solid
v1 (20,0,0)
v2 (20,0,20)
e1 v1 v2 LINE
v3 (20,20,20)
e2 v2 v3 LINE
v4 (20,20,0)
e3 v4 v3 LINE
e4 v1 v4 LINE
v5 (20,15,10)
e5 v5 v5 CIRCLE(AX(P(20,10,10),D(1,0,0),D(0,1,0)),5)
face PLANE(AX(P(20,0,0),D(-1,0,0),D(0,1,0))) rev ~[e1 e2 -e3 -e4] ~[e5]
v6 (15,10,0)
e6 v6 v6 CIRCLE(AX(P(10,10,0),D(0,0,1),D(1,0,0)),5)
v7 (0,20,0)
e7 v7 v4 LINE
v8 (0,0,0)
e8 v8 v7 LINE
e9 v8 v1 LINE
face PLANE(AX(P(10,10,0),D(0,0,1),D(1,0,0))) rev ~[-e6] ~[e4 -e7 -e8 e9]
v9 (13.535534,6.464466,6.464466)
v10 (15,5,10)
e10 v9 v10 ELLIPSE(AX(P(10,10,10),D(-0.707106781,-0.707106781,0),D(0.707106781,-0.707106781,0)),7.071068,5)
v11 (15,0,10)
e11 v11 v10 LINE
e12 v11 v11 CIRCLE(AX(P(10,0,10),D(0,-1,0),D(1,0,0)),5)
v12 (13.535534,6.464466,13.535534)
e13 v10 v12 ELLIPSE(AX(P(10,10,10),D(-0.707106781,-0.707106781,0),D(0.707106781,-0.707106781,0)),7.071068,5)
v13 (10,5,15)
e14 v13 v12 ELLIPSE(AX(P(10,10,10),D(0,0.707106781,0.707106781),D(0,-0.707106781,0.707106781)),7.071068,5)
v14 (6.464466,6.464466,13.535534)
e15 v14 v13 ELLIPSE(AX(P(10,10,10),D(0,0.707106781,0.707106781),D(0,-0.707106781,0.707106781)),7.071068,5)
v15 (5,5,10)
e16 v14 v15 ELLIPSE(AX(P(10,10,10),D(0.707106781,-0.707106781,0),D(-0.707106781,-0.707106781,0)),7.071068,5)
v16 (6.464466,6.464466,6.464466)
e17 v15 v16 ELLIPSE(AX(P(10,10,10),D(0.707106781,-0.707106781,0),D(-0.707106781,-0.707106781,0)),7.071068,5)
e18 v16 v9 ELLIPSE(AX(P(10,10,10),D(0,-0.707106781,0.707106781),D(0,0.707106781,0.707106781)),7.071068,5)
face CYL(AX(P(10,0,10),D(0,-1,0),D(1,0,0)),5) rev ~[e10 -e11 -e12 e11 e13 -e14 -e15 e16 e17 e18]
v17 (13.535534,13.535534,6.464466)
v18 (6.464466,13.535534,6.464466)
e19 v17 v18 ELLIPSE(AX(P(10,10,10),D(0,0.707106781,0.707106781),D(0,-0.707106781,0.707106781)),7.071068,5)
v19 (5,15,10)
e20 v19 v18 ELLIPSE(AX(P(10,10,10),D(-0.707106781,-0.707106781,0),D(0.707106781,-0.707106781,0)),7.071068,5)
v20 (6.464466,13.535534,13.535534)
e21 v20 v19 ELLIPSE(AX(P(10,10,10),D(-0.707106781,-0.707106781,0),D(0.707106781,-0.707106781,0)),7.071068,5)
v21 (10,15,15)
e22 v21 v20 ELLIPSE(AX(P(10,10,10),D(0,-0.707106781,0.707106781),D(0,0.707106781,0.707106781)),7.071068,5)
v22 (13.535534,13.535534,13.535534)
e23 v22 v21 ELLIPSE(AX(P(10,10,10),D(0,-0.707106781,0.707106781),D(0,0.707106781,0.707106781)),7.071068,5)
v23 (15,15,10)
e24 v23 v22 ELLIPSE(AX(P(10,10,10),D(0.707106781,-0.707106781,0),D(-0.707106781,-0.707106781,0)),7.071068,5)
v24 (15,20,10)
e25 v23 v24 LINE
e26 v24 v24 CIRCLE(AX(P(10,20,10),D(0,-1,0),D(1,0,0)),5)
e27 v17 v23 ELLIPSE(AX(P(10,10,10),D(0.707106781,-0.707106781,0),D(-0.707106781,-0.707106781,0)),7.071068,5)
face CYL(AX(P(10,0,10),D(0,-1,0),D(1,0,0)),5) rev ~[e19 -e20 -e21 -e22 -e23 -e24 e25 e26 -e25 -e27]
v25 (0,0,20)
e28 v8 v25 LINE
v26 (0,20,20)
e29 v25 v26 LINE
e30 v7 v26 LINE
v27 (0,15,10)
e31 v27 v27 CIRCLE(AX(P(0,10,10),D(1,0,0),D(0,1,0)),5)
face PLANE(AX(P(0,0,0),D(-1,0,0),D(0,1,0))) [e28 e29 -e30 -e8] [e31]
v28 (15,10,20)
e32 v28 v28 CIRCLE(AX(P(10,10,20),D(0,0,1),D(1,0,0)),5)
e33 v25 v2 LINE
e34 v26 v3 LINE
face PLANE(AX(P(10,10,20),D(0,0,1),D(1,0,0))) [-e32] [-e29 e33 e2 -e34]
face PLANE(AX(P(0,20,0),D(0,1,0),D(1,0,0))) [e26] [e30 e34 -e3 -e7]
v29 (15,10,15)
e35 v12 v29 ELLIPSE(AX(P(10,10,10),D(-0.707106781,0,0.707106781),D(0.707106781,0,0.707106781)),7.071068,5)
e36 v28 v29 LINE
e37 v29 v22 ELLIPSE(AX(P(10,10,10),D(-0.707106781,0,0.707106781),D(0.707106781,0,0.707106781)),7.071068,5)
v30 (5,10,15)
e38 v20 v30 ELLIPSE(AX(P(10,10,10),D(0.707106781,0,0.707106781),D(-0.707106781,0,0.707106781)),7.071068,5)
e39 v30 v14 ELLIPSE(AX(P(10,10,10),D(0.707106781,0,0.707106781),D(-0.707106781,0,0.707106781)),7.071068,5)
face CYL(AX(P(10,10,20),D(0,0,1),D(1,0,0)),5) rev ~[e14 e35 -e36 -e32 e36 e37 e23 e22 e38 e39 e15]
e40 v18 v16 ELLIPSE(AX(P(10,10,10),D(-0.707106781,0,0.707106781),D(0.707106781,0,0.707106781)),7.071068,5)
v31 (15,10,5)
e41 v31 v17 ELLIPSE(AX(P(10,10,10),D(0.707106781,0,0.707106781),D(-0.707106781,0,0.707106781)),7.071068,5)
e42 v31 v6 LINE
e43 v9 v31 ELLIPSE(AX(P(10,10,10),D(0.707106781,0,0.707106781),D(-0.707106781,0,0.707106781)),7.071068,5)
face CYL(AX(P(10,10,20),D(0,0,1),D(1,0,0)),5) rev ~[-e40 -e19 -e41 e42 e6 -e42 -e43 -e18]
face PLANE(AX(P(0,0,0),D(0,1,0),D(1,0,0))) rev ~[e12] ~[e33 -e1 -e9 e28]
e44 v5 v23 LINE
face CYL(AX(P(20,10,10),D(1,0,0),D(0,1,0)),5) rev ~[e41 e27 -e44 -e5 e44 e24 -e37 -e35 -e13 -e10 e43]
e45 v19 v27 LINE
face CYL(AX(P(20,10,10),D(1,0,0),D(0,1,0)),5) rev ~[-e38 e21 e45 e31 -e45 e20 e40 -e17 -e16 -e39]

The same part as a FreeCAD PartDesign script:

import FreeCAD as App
import Part
import Sketcher
from FreeCAD import Vector
Q = App.Units.Quantity


def add_polygon(sketch, points):
    """Adds a closed chain of lines whose ends are joined by coincident constraints."""
    first, n = sketch.GeometryCount, len(points)
    for a, b in zip(points, points[1:] + points[:1]):
        sketch.addGeometry(Part.LineSegment(App.Vector(*a, 0), App.Vector(*b, 0)), False)
    for i in range(n):
        sketch.addConstraint(Sketcher.Constraint("Coincident", first + i, 2, first + (i + 1) % n, 1))

doc = App.newDocument("Part")
body = doc.addObject("PartDesign::Body", "Body")

sketch1 = doc.addObject("Sketcher::SketchObject", "Sketch")
body.addObject(sketch1)
sketch1.AttachmentSupport = (doc.XY_Plane, [""])
sketch1.MapMode = "FlatFace"
add_polygon(sketch1, [(0, 20), (0, 0), (20, 0), (20, 20)])
sketch1.addConstraint([
    Sketcher.Constraint("Vertical", 0),
    Sketcher.Constraint("Horizontal", 1),
    Sketcher.Constraint("Vertical", 2),
    Sketcher.Constraint("Horizontal", 3),
    Sketcher.Constraint("Coincident", 0, 2, -1, 1),
    Sketcher.Constraint("Equal", 3, 0),
    Sketcher.Constraint("DistanceX", 1, 1, 1, 2, Q("20 mm")),
])
pad1 = doc.addObject("PartDesign::Pad", "Pad")
body.addObject(pad1)
pad1.Profile = sketch1
pad1.Length = 20

sketch2 = doc.addObject("Sketcher::SketchObject", "Sketch001")
body.addObject(sketch2)
sketch2.AttachmentSupport = (doc.XY_Plane, [""])
sketch2.MapMode = "FlatFace"
sketch2.AttachmentOffset = App.Placement(Vector(0, 0, 20), App.Rotation())
sketch2.addGeometry(Part.Circle(Vector(10, 10, 0), Vector(0, 0, 1), 5), False)
sketch2.addConstraint([
    Sketcher.Constraint("Diameter", 0, Q("10 mm")),
    Sketcher.Constraint("DistanceX", -1, 1, 0, 3, Q("10 mm")),
    Sketcher.Constraint("DistanceY", -1, 1, 0, 3, Q("10 mm")),
])
pocket1 = doc.addObject("PartDesign::Pocket", "Pocket")
body.addObject(pocket1)
pocket1.Profile = sketch2
pocket1.Length = 25

sketch3 = doc.addObject("Sketcher::SketchObject", "Sketch002")
body.addObject(sketch3)
sketch3.AttachmentSupport = (doc.XZ_Plane, [""])
sketch3.MapMode = "FlatFace"
sketch3.addGeometry(Part.Circle(Vector(10, 10, 0), Vector(0, 0, 1), 5), False)
sketch3.addConstraint([
    Sketcher.Constraint("Diameter", 0, Q("10 mm")),
    Sketcher.Constraint("DistanceX", -1, 1, 0, 3, Q("10 mm")),
    Sketcher.Constraint("DistanceY", -1, 1, 0, 3, Q("10 mm")),
])
pocket2 = doc.addObject("PartDesign::Pocket", "Pocket001")
body.addObject(pocket2)
pocket2.Profile = sketch3
pocket2.Length = 25

sketch4 = doc.addObject("Sketcher::SketchObject", "Sketch003")
body.addObject(sketch4)
sketch4.AttachmentSupport = (doc.YZ_Plane, [""])
sketch4.MapMode = "FlatFace"
sketch4.AttachmentOffset = App.Placement(Vector(0, 0, 20), App.Rotation())
sketch4.addGeometry(Part.Circle(Vector(10, 10, 0), Vector(0, 0, 1), 5), False)
sketch4.addConstraint([
    Sketcher.Constraint("Diameter", 0, Q("10 mm")),
    Sketcher.Constraint("DistanceX", -1, 1, 0, 3, Q("10 mm")),
    Sketcher.Constraint("DistanceY", -1, 1, 0, 3, Q("10 mm")),
])
pocket3 = doc.addObject("PartDesign::Pocket", "Pocket002")
body.addObject(pocket3)
pocket3.Profile = sketch4
pocket3.Length = 25

doc.recompute()
